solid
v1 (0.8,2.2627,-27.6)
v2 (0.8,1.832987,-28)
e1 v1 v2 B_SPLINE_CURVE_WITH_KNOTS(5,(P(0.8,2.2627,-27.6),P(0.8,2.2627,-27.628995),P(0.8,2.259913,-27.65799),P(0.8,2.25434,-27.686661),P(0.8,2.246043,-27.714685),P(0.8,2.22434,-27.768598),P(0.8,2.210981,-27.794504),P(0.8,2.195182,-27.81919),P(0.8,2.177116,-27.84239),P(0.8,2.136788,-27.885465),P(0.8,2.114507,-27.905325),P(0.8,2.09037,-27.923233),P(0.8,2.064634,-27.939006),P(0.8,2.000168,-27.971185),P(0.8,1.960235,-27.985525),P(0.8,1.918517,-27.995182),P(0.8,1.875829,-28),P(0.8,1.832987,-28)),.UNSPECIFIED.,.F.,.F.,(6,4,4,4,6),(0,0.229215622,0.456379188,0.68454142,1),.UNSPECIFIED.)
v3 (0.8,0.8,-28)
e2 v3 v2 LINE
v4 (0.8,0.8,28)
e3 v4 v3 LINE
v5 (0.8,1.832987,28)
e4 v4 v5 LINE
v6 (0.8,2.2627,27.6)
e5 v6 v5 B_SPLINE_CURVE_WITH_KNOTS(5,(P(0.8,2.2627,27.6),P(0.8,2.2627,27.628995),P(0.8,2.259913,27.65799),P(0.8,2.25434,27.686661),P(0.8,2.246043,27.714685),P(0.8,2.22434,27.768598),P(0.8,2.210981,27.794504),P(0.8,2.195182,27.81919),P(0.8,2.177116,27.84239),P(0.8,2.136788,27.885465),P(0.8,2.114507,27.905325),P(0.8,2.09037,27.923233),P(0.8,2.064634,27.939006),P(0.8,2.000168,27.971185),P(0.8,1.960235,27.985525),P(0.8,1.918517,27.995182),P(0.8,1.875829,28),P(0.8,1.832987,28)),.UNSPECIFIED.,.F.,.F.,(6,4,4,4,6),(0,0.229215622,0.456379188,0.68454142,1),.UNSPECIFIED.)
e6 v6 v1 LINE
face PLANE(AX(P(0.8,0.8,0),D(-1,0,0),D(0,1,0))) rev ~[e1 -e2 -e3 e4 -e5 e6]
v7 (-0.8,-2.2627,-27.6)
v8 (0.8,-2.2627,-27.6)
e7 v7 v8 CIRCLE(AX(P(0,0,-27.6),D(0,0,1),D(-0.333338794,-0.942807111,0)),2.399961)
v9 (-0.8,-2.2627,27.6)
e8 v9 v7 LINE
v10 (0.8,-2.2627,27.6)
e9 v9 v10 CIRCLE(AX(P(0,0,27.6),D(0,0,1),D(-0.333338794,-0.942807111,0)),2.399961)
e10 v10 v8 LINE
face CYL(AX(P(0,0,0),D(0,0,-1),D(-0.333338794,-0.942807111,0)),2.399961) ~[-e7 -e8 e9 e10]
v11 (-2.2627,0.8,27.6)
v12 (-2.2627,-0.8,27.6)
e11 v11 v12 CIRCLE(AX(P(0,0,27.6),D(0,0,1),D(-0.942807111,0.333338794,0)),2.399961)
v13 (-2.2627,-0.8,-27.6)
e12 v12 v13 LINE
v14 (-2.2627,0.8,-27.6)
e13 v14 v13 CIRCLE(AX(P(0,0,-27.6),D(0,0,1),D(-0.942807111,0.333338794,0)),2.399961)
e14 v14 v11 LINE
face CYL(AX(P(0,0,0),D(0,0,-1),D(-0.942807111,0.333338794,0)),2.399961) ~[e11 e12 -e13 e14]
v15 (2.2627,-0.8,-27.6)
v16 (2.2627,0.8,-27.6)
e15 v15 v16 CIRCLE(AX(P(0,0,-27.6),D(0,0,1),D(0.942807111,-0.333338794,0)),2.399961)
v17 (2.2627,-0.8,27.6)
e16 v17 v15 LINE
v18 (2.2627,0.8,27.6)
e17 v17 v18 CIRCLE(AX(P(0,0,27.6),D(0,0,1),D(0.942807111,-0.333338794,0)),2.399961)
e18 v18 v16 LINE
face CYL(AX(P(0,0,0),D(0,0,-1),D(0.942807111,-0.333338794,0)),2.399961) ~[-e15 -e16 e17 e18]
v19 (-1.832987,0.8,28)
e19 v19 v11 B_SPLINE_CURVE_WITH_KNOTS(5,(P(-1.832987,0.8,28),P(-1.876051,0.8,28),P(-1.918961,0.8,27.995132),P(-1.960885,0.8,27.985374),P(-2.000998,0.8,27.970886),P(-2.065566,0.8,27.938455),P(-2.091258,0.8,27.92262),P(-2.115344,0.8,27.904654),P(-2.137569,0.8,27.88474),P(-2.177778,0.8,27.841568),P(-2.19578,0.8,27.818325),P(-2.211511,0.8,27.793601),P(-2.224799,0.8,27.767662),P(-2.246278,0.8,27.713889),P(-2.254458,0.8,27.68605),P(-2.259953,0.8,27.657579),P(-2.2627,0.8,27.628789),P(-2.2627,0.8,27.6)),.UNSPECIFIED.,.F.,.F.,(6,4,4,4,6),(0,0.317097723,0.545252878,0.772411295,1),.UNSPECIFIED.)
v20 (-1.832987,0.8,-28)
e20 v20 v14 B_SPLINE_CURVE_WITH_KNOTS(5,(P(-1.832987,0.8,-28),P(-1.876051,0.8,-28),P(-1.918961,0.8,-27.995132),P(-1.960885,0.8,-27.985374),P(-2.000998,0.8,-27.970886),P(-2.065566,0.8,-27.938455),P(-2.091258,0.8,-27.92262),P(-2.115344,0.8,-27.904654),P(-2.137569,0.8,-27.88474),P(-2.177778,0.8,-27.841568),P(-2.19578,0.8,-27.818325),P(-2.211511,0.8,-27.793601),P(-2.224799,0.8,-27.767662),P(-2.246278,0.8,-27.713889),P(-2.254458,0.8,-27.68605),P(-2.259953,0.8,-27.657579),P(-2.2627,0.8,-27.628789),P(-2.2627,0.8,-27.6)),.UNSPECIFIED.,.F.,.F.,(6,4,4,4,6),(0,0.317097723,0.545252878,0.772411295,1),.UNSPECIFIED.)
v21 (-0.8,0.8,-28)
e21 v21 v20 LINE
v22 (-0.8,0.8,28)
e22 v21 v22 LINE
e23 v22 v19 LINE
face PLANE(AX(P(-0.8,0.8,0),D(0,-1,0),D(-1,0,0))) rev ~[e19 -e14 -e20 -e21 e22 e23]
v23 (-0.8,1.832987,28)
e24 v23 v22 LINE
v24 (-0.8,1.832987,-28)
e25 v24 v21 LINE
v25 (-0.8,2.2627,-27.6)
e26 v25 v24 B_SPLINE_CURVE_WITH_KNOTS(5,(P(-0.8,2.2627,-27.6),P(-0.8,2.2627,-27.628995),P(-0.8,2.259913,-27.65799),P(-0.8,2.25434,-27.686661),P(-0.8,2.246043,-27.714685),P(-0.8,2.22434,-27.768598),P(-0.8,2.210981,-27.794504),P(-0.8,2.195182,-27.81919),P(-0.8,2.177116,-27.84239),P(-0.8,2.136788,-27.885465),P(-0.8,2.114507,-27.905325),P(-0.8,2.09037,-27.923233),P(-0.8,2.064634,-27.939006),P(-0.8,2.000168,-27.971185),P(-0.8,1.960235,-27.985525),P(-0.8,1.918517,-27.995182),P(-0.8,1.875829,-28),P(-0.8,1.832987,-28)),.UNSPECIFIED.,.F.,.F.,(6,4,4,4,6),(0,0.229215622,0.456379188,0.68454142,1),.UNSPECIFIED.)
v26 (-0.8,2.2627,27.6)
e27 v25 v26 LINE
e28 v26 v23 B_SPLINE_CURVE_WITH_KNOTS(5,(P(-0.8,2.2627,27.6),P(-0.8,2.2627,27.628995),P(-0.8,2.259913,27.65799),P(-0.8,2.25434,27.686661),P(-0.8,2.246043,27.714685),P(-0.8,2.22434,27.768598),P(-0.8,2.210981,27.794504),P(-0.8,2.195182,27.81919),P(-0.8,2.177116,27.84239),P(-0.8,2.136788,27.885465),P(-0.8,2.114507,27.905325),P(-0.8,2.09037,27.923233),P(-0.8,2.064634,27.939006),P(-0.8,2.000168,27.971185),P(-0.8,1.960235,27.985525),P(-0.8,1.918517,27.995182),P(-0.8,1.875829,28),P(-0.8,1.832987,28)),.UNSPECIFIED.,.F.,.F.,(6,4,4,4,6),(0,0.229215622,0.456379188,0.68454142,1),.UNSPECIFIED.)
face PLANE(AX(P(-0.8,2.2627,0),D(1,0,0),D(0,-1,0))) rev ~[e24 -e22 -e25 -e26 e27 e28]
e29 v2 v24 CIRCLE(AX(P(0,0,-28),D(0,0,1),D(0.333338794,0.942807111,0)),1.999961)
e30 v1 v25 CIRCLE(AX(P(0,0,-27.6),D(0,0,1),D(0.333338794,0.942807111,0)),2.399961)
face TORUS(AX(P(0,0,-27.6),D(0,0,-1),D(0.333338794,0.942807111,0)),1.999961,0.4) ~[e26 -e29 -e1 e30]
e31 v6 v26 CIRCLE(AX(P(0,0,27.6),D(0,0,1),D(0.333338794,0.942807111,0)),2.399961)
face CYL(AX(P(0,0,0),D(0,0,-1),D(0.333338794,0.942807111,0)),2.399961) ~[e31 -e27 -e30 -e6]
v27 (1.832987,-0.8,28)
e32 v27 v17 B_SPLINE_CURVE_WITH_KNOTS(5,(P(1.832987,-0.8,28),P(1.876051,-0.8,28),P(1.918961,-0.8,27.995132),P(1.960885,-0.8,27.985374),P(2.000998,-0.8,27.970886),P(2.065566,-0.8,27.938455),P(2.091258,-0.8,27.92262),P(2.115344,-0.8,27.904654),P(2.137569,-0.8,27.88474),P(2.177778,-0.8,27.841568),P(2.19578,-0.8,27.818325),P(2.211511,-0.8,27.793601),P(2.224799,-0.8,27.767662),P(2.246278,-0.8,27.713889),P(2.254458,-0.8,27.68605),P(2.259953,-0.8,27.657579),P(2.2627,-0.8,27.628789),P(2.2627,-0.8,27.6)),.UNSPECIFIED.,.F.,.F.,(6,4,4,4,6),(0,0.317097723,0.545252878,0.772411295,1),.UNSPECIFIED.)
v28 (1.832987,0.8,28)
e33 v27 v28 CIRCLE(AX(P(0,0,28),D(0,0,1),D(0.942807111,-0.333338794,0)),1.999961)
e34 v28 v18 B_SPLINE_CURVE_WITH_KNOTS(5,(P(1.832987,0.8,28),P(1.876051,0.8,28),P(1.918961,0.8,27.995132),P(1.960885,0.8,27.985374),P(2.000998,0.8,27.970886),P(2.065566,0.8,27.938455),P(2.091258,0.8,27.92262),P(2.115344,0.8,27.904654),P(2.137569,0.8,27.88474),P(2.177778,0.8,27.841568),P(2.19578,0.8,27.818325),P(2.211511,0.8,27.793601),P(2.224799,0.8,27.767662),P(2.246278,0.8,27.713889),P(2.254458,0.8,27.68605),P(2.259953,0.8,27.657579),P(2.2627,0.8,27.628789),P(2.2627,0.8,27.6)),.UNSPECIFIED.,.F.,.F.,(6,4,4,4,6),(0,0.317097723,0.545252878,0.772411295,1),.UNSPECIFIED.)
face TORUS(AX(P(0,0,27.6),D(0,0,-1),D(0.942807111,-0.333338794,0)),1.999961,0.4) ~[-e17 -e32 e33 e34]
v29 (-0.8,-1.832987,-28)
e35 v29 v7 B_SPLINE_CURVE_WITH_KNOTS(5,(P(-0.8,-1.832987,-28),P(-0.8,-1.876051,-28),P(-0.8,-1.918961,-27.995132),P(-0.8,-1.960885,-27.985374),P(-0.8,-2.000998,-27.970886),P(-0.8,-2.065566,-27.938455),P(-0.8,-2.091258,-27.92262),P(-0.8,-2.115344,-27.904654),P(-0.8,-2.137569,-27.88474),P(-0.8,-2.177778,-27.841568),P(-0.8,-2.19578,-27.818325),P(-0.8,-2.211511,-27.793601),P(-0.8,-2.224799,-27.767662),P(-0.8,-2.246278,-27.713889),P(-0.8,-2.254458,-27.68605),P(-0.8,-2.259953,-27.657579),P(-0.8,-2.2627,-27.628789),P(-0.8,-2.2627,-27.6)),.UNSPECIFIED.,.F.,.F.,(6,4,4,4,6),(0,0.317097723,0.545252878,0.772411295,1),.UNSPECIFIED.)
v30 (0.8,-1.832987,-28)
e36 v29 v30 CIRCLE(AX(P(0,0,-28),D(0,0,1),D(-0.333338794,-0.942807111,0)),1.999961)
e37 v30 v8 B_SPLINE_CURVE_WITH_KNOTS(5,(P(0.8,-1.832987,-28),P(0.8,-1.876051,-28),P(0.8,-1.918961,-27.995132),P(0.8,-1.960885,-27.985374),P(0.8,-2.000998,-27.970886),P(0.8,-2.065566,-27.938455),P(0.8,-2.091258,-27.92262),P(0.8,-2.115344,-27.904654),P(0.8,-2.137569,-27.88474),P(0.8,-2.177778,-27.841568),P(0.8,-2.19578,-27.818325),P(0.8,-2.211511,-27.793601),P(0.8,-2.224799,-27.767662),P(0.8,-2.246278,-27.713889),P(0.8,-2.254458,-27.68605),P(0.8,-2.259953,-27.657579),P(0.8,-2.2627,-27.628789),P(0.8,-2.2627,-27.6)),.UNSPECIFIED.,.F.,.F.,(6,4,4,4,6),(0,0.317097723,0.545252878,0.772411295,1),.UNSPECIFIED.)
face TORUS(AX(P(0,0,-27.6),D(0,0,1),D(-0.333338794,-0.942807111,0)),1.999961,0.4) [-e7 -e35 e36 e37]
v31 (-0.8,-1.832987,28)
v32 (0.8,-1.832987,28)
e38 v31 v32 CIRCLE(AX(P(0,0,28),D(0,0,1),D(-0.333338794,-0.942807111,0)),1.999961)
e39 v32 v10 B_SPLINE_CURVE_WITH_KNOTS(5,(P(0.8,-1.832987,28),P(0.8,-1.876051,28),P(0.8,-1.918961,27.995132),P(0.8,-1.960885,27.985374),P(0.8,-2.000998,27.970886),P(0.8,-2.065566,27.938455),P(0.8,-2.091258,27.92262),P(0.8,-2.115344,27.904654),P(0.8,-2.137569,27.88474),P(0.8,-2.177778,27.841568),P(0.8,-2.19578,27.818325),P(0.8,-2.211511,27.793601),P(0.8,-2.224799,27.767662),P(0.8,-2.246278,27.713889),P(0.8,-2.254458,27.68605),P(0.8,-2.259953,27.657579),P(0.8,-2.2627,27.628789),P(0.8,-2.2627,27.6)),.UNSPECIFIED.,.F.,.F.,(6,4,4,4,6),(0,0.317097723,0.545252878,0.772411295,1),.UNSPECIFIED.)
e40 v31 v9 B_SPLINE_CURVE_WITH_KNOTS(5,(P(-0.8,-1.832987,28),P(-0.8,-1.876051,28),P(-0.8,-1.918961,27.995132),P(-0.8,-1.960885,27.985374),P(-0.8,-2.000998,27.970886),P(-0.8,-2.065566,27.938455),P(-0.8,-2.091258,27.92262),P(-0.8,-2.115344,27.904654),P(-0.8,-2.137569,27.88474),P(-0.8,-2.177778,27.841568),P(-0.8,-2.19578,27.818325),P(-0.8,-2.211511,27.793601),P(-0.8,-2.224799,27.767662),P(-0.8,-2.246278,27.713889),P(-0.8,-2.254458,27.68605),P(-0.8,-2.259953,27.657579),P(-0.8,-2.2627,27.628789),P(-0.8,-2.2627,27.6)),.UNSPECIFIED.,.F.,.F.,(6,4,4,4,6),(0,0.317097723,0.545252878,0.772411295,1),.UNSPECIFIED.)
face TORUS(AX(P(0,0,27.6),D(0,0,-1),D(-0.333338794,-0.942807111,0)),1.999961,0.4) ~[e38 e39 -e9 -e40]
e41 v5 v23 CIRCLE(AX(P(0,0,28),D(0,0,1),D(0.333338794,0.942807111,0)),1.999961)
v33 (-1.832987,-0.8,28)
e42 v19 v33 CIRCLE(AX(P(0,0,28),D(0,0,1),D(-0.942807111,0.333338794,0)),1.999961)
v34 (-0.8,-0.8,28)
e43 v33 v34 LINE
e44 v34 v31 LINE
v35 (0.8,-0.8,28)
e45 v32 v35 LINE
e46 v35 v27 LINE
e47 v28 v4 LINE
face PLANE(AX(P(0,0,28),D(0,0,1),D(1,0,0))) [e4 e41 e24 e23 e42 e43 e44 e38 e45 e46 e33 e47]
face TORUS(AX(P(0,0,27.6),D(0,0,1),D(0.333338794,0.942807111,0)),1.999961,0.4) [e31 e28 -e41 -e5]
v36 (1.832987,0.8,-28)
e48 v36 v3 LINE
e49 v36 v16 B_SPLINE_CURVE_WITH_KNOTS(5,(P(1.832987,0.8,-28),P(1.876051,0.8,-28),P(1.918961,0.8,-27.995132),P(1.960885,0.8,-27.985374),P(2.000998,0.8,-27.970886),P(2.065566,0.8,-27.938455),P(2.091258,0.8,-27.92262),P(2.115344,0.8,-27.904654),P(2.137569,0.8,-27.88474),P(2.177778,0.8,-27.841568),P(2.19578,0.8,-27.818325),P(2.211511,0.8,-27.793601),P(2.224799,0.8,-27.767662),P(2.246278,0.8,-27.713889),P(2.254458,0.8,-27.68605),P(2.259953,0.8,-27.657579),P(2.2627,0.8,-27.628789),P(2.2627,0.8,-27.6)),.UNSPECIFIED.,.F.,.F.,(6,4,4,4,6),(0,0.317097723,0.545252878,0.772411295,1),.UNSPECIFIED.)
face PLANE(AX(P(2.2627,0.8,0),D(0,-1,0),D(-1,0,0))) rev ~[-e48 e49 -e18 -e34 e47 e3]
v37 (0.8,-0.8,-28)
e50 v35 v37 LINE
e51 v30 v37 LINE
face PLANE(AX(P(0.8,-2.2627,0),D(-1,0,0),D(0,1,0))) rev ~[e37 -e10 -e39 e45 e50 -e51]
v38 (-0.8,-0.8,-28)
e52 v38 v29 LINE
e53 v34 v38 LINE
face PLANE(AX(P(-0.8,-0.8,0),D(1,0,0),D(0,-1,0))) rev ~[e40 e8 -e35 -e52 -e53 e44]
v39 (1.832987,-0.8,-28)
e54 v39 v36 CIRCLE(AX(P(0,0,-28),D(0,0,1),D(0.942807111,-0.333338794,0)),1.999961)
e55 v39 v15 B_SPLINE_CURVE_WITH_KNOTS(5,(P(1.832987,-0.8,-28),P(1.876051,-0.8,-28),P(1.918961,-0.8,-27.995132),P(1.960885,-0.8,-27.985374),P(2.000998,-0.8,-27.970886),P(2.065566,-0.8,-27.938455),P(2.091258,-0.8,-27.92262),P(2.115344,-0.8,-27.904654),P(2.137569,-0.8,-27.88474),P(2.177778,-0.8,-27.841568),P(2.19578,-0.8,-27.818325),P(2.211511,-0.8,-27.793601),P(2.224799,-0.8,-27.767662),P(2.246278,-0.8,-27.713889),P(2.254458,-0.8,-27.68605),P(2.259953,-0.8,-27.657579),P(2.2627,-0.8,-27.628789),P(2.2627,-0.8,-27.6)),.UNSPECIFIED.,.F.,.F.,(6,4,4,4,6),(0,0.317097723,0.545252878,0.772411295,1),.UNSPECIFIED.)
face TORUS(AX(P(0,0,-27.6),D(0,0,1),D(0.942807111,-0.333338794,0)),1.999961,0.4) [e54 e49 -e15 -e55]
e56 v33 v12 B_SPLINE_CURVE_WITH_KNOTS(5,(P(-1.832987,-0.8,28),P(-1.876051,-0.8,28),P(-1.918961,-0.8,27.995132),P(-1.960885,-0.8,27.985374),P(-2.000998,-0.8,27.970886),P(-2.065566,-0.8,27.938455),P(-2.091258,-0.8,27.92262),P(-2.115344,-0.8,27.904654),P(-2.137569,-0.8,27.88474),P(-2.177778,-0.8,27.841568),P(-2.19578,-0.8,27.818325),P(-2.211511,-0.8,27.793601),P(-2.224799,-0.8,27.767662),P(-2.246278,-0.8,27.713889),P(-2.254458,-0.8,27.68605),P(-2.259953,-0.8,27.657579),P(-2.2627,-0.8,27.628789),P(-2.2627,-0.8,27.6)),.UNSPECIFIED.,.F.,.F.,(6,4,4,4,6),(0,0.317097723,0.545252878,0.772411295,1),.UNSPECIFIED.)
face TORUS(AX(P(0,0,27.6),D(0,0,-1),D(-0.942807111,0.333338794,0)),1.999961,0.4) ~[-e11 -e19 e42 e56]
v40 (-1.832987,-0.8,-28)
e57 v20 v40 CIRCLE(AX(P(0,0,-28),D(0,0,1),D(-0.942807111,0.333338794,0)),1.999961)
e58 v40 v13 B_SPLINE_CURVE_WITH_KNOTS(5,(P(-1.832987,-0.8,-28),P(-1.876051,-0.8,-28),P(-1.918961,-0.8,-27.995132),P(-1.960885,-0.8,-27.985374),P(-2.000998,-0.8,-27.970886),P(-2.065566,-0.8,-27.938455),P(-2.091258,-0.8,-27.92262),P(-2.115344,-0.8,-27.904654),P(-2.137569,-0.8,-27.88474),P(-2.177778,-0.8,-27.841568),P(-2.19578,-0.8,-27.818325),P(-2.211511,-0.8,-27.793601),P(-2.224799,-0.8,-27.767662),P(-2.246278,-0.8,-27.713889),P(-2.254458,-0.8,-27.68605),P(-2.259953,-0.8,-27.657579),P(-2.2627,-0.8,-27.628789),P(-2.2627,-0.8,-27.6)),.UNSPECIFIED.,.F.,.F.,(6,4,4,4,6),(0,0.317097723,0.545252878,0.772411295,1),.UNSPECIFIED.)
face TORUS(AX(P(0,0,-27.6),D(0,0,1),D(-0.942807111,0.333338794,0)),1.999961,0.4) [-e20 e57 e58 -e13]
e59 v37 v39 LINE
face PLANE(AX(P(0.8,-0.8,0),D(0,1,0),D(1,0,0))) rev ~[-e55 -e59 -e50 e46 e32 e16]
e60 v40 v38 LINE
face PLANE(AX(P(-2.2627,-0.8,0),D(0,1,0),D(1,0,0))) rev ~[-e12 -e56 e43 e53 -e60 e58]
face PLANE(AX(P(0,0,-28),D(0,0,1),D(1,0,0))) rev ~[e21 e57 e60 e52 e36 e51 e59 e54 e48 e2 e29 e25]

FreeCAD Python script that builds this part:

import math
import FreeCAD as App
import Part
import Sketcher
from FreeCAD import Vector


def edges_at(feature, points):
    """Names of the edges that pass closest to the given points."""
    edges = feature.Shape.Edges
    near = lambda p: min(range(len(edges)), key=lambda i: edges[i].distToShape(Part.Vertex(*p))[0])
    return sorted({f"Edge{near(p) + 1}" for p in points})

doc = App.newDocument("Part")
body = doc.addObject("PartDesign::Body", "Body")

# Sketch on XY plane
sketch1 = body.newObject("Sketcher::SketchObject", "Sketch")
sketch1.AttachmentSupport = (doc.getObject("XY_Plane"), [""])
sketch1.MapMode = "FlatFace"
sketch1.addGeometry(Part.ArcOfCircle(Part.Circle(Vector(0, 0, 0), Vector(0, 0, 1), 2.4), math.radians(71), math.radians(109)), False)
sketch1.addGeometry(Part.LineSegment(Vector(-0.8, 2.3, 0), Vector(-0.8, 0.8, 0)), False)
sketch1.addGeometry(Part.LineSegment(Vector(-0.8, 0.8, 0), Vector(-2.3, 0.8, 0)), False)
sketch1.addGeometry(Part.ArcOfCircle(Part.Circle(Vector(0, 0, 0), Vector(0, 0, 1), 2.4), math.radians(161), math.radians(199)), False)
sketch1.addGeometry(Part.LineSegment(Vector(-2.3, -0.8, 0), Vector(-0.8, -0.8, 0)), False)
sketch1.addGeometry(Part.LineSegment(Vector(-0.8, -0.8, 0), Vector(-0.8, -2.3, 0)), False)
sketch1.addGeometry(Part.ArcOfCircle(Part.Circle(Vector(0, 0, 0), Vector(0, 0, 1), 2.4), math.radians(-109), math.radians(-71)), False)
sketch1.addGeometry(Part.LineSegment(Vector(0.8, -2.3, 0), Vector(0.8, -0.8, 0)), False)
sketch1.addGeometry(Part.LineSegment(Vector(0.8, -0.8, 0), Vector(2.3, -0.8, 0)), False)
sketch1.addGeometry(Part.ArcOfCircle(Part.Circle(Vector(0, 0, 0), Vector(0, 0, 1), 2.4), math.radians(-19), math.radians(19)), False)
sketch1.addGeometry(Part.LineSegment(Vector(2.3, 0.8, 0), Vector(0.8, 0.8, 0)), False)
sketch1.addGeometry(Part.LineSegment(Vector(0.8, 0.8, 0), Vector(0.8, 2.3, 0)), False)
sketch1.addConstraint(Sketcher.Constraint("Coincident", 0, 2, 1, 1))
sketch1.addConstraint(Sketcher.Constraint("Coincident", 1, 2, 2, 1))
sketch1.addConstraint(Sketcher.Constraint("Coincident", 2, 2, 3, 1))
sketch1.addConstraint(Sketcher.Constraint("Coincident", 3, 2, 4, 1))
sketch1.addConstraint(Sketcher.Constraint("Coincident", 4, 2, 5, 1))
sketch1.addConstraint(Sketcher.Constraint("Coincident", 5, 2, 6, 1))
sketch1.addConstraint(Sketcher.Constraint("Coincident", 6, 2, 7, 1))
sketch1.addConstraint(Sketcher.Constraint("Coincident", 7, 2, 8, 1))
sketch1.addConstraint(Sketcher.Constraint("Coincident", 8, 2, 9, 1))
sketch1.addConstraint(Sketcher.Constraint("Coincident", 9, 2, 10, 1))
sketch1.addConstraint(Sketcher.Constraint("Coincident", 10, 2, 11, 1))
sketch1.addConstraint(Sketcher.Constraint("Coincident", 11, 2, 0, 1))
sketch1.addConstraint(Sketcher.Constraint("Vertical", 1))
sketch1.addConstraint(Sketcher.Constraint("Horizontal", 2))
sketch1.addConstraint(Sketcher.Constraint("Horizontal", 4))
sketch1.addConstraint(Sketcher.Constraint("Vertical", 5))
sketch1.addConstraint(Sketcher.Constraint("Vertical", 7))
sketch1.addConstraint(Sketcher.Constraint("Horizontal", 8))
sketch1.addConstraint(Sketcher.Constraint("Horizontal", 10))
sketch1.addConstraint(Sketcher.Constraint("Vertical", 11))
sketch1.addConstraint(Sketcher.Constraint("Coincident", 0, 3, -1, 1))
sketch1.addConstraint(Sketcher.Constraint("Coincident", 3, 3, -1, 1))
sketch1.addConstraint(Sketcher.Constraint("Coincident", 6, 3, -1, 1))
sketch1.addConstraint(Sketcher.Constraint("Coincident", 9, 3, -1, 1))
sketch1.addConstraint(Sketcher.Constraint("Equal", 0, 3))
sketch1.addConstraint(Sketcher.Constraint("Equal", 3, 6))
sketch1.addConstraint(Sketcher.Constraint("Equal", 6, 9))
sketch1.addConstraint(Sketcher.Constraint("Symmetric", 1, 2, 7, 2, -1, 1))
sketch1.addConstraint(Sketcher.Constraint("Symmetric", 4, 2, 10, 2, -1, 1))
sketch1.addConstraint(Sketcher.Constraint("Symmetric", 4, 2, 7, 2, -2))
sketch1.addConstraint(Sketcher.Constraint("Equal", 10, 1))
sketch1.addConstraint(Sketcher.Constraint("Radius", 0, 2.4))
sketch1.addConstraint(Sketcher.Constraint("DistanceY", 3, 2, 2, 2, 1.6))
pad1 = body.newObject("PartDesign::Pad", "Pad")
pad1.Profile = sketch1
pad1.Length = 56
pad1.Midplane = True
doc.recompute()

fillet = body.newObject("PartDesign::Fillet", "Fillet")
fillet.Base = (pad1, edges_at(pad1, [
    (0, 2.4, 28),
    (-2.4, 0, 28),
    (0, -2.4, 28),
    (2.4, 0, 28),
    (2.4, 0, -28),
    (0, 2.4, -28),
    (-2.4, 0, -28),
    (0, -2.4, -28),
]))
fillet.Radius = 0.4

doc.recompute()
